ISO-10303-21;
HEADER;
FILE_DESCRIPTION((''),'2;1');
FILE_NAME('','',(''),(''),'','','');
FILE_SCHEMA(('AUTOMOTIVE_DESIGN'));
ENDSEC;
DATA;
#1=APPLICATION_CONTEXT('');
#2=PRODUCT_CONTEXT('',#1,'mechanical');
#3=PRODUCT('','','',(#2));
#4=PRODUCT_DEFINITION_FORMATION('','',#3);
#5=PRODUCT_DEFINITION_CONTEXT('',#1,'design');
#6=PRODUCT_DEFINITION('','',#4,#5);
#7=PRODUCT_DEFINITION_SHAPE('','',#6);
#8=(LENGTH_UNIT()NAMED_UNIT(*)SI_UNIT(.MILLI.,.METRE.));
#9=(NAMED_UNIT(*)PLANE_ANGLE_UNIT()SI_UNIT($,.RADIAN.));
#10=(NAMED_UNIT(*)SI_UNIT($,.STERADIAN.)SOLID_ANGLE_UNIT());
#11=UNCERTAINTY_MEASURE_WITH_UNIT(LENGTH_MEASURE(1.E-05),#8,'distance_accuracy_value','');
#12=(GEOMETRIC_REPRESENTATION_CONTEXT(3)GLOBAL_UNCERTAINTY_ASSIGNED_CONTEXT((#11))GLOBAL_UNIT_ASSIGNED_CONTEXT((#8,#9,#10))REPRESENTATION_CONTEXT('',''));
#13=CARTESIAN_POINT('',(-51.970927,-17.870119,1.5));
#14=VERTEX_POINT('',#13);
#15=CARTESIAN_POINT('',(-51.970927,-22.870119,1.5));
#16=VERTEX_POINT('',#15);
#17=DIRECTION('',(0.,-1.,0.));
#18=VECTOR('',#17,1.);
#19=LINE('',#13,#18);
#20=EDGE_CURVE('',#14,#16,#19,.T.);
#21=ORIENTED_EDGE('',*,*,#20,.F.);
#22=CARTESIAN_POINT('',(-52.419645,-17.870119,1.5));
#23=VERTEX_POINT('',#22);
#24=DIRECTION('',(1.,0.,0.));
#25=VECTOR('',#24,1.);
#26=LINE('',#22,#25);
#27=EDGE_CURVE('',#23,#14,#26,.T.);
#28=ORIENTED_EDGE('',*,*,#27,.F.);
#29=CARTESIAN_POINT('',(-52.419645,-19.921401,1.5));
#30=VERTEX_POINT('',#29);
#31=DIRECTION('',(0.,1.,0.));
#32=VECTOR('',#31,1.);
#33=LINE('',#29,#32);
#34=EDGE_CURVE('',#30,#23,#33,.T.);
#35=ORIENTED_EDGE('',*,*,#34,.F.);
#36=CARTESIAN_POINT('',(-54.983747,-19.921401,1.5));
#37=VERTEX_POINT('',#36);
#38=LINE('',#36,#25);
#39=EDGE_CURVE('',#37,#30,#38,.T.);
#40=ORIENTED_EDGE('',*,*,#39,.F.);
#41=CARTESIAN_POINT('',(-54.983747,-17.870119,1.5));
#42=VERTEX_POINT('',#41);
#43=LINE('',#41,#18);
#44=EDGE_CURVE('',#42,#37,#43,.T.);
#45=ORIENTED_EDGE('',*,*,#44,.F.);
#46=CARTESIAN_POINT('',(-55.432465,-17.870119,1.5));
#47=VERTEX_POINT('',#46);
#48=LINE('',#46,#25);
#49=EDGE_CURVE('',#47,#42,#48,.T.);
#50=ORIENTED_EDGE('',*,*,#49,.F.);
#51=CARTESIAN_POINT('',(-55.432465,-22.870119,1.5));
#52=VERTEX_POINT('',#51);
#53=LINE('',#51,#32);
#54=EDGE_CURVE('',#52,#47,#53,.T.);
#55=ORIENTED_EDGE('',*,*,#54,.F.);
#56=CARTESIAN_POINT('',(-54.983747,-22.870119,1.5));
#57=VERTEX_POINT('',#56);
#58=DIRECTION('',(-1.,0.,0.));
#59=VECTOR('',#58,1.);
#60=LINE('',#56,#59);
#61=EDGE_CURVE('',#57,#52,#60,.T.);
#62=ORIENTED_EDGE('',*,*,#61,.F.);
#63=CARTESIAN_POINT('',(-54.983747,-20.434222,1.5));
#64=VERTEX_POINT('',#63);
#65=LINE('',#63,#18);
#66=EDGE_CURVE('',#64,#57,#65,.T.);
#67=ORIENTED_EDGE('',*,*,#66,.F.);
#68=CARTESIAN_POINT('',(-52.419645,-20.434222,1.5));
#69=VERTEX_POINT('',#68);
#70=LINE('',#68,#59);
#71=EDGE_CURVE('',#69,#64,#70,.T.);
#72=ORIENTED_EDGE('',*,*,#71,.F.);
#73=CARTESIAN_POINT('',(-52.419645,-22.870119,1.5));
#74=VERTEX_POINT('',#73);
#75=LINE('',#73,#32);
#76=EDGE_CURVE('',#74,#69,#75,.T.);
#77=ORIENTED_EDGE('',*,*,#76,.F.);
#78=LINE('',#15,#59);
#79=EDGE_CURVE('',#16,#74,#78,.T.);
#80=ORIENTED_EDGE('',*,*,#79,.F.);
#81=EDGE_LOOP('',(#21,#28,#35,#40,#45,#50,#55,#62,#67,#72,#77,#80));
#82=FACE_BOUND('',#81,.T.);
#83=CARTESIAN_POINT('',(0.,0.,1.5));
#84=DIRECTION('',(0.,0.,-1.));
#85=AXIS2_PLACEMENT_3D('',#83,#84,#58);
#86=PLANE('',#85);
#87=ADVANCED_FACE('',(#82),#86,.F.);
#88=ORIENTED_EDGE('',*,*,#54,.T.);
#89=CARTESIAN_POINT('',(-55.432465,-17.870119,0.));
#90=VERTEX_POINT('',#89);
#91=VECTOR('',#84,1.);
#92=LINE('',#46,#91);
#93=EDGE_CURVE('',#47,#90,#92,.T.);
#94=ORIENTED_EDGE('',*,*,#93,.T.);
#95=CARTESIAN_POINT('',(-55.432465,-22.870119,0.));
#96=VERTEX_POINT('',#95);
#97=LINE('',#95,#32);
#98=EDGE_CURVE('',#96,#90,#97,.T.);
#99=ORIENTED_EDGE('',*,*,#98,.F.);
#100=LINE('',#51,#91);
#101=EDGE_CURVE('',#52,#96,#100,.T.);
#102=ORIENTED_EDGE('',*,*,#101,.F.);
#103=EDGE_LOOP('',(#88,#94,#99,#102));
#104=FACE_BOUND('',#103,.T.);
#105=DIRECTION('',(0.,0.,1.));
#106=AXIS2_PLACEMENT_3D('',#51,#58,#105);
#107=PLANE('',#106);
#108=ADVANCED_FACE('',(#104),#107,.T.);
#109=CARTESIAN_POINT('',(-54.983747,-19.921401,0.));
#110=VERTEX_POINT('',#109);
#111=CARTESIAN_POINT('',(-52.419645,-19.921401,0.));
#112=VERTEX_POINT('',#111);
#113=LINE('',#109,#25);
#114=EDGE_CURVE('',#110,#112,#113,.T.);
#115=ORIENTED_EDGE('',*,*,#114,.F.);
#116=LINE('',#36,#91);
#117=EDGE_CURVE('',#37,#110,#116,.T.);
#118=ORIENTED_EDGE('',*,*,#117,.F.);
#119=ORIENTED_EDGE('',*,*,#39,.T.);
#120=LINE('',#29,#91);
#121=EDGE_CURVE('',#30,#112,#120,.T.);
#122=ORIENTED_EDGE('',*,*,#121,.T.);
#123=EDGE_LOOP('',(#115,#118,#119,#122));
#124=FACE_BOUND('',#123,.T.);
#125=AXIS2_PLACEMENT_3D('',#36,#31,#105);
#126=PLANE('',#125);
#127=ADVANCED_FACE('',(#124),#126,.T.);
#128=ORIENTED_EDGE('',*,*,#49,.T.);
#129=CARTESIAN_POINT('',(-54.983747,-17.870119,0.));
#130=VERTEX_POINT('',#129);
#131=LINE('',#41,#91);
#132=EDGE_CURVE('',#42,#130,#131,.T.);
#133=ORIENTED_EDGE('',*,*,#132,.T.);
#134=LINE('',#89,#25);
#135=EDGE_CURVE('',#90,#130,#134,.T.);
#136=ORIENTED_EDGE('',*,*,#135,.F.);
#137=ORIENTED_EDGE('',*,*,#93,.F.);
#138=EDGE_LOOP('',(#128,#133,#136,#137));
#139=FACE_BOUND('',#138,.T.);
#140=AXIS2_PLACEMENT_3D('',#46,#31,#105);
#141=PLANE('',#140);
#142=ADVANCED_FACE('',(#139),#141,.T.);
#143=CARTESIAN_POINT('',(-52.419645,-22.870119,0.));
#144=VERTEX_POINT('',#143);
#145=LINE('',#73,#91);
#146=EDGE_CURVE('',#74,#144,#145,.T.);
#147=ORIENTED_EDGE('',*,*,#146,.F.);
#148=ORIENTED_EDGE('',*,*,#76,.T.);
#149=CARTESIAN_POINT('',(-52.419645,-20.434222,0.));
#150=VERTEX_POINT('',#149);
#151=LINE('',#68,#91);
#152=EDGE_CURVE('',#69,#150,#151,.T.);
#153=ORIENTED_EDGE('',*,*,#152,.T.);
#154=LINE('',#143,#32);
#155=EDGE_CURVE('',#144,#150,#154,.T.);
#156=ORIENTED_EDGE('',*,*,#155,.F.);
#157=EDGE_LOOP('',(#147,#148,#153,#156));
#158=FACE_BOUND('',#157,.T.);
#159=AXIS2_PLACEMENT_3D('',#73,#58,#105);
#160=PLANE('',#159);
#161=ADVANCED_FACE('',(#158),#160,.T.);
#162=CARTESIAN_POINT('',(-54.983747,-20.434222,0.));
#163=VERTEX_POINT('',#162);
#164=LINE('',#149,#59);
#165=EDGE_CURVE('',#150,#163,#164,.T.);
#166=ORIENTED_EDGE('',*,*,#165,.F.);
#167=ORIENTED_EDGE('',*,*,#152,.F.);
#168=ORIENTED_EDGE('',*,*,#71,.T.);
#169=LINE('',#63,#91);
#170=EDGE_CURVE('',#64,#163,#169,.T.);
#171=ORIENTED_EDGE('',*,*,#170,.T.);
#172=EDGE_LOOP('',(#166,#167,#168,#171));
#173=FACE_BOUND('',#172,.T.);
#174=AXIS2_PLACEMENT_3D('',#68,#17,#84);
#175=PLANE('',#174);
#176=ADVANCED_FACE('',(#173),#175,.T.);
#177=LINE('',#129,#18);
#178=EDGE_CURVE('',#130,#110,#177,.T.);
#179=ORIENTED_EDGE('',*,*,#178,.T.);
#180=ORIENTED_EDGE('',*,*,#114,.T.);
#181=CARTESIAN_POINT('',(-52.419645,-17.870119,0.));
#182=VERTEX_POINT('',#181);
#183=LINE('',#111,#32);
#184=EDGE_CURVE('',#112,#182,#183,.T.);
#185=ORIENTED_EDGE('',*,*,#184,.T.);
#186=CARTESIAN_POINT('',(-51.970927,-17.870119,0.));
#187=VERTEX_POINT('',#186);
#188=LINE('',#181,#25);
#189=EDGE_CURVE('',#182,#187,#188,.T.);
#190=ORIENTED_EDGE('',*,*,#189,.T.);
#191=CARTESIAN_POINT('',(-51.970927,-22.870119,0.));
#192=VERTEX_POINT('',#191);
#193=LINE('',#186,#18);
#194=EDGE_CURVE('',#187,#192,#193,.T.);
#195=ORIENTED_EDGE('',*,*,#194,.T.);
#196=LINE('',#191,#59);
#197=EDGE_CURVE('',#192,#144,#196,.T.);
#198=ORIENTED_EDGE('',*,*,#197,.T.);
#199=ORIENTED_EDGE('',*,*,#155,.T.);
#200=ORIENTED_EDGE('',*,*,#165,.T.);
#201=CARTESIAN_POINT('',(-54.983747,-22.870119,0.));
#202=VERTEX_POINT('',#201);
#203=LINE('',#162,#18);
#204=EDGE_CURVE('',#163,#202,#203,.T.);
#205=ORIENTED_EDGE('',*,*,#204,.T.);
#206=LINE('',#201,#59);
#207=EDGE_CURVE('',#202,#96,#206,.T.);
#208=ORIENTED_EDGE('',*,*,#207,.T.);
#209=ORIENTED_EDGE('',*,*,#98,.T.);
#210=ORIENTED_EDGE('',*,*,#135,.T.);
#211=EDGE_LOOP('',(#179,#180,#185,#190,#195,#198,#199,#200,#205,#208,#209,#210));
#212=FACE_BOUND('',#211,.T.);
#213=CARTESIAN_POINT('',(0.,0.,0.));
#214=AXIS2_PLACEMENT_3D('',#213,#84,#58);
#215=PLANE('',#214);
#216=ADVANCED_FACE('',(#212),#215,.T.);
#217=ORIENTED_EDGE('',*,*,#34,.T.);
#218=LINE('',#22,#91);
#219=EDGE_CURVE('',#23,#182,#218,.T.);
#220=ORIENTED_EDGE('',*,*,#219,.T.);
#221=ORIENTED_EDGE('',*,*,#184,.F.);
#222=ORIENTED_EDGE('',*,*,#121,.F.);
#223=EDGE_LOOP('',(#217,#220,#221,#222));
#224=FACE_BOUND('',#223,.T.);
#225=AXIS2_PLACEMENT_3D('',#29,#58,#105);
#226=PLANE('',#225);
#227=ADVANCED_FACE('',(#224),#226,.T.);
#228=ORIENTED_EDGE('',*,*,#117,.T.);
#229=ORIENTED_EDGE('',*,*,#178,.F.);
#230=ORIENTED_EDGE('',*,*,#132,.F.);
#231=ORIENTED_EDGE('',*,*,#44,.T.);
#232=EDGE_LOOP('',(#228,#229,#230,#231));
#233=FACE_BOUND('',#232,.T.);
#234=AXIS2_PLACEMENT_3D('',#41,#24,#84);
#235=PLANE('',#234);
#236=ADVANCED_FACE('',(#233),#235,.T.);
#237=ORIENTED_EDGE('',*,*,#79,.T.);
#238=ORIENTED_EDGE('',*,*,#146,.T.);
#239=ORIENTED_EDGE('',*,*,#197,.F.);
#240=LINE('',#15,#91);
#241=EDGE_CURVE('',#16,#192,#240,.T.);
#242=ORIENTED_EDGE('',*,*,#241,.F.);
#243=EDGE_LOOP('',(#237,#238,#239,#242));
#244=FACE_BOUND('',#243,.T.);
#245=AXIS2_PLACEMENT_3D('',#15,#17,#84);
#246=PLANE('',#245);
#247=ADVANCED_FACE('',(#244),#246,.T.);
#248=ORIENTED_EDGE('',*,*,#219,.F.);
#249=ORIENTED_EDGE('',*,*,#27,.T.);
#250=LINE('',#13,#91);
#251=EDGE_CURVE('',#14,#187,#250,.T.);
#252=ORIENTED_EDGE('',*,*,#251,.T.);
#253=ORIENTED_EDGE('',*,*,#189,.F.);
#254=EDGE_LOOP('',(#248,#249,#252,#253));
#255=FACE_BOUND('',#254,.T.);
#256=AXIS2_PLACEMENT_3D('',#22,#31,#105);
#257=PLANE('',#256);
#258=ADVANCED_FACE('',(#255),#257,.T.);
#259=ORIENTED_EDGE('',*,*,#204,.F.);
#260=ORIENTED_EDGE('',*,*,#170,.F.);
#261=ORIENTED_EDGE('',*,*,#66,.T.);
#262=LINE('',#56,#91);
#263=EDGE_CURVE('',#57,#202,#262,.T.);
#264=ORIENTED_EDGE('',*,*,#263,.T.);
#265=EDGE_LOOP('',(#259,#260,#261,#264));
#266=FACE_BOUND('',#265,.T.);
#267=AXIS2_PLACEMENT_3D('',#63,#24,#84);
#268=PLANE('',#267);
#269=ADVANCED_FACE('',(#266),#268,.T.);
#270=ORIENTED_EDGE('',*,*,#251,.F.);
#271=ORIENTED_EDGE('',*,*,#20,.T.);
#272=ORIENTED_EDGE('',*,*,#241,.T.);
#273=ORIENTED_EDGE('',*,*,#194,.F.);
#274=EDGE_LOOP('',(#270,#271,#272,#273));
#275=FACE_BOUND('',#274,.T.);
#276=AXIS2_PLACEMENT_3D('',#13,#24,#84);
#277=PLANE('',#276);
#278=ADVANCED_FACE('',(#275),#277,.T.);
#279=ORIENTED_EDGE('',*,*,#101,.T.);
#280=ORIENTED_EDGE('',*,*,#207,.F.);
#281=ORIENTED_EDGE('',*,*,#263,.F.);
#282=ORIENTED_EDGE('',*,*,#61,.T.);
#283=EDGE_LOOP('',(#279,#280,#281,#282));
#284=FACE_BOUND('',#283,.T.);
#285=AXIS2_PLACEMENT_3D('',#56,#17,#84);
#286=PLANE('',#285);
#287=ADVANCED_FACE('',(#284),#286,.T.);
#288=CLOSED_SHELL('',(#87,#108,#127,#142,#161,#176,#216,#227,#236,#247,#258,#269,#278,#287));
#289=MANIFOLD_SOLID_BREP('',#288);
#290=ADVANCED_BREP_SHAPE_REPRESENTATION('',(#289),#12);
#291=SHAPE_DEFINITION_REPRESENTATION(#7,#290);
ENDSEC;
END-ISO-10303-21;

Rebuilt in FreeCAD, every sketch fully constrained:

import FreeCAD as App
import Part
import Sketcher
Q = App.Units.Quantity

doc = App.newDocument("Part")
params = doc.addObject("Spreadsheet::Sheet", "Params")
for row, (alias, value) in enumerate([
    ("sketch1_height", "5 mm"),
    ("pad1_length", "1.5 mm"),
], start=1):
    params.set(f"A{row}", alias)
    params.set(f"B{row}", "=" + value)
    params.setAlias(f"B{row}", alias)

body = doc.addObject("PartDesign::Body", "Body")

sketch1 = doc.addObject("Sketcher::SketchObject", "Sketch")
body.addObject(sketch1)
sketch1.AttachmentSupport = (doc.XY_Plane, [""])
sketch1.MapMode = "FlatFace"
sketch1.addGeometry([
    Part.LineSegment(App.Vector(-54.983747, -17.870119, 0), App.Vector(-55.432465, -17.870119, 0)),
    Part.LineSegment(App.Vector(-55.432465, -17.870119, 0), App.Vector(-55.432465, -22.870119, 0)),
    Part.LineSegment(App.Vector(-55.432465, -22.870119, 0), App.Vector(-54.983747, -22.870119, 0)),
    Part.LineSegment(App.Vector(-54.983747, -22.870119, 0), App.Vector(-54.983747, -20.434222, 0)),
    Part.LineSegment(App.Vector(-54.983747, -20.434222, 0), App.Vector(-52.419645, -20.434222, 0)),
    Part.LineSegment(App.Vector(-52.419645, -20.434222, 0), App.Vector(-52.419645, -22.870119, 0)),
    Part.LineSegment(App.Vector(-52.419645, -22.870119, 0), App.Vector(-51.970927, -22.870119, 0)),
    Part.LineSegment(App.Vector(-51.970927, -22.870119, 0), App.Vector(-51.970927, -17.870119, 0)),
    Part.LineSegment(App.Vector(-51.970927, -17.870119, 0), App.Vector(-52.419645, -17.870119, 0)),
    Part.LineSegment(App.Vector(-52.419645, -17.870119, 0), App.Vector(-52.419645, -19.921401, 0)),
    Part.LineSegment(App.Vector(-52.419645, -19.921401, 0), App.Vector(-54.983747, -19.921401, 0)),
    Part.LineSegment(App.Vector(-54.983747, -19.921401, 0), App.Vector(-54.983747, -17.870119, 0)),
], False)
sketch1.addConstraint([
    Sketcher.Constraint("Coincident", 0, 2, 1, 1),
    Sketcher.Constraint("Coincident", 1, 2, 2, 1),
    Sketcher.Constraint("Coincident", 2, 2, 3, 1),
    Sketcher.Constraint("Coincident", 3, 2, 4, 1),
    Sketcher.Constraint("Coincident", 4, 2, 5, 1),
    Sketcher.Constraint("Coincident", 5, 2, 6, 1),
    Sketcher.Constraint("Coincident", 6, 2, 7, 1),
    Sketcher.Constraint("Coincident", 7, 2, 8, 1),
    Sketcher.Constraint("Coincident", 8, 2, 9, 1),
    Sketcher.Constraint("Coincident", 9, 2, 10, 1),
    Sketcher.Constraint("Coincident", 10, 2, 11, 1),
    Sketcher.Constraint("Coincident", 11, 2, 0, 1),
    Sketcher.Constraint("Horizontal", 0),
    Sketcher.Constraint("Vertical", 1),
    Sketcher.Constraint("Horizontal", 2),
    Sketcher.Constraint("Vertical", 3),
    Sketcher.Constraint("Horizontal", 4),
    Sketcher.Constraint("Vertical", 5),
    Sketcher.Constraint("Horizontal", 6),
    Sketcher.Constraint("Vertical", 7),
    Sketcher.Constraint("Horizontal", 8),
    Sketcher.Constraint("Vertical", 9),
    Sketcher.Constraint("Horizontal", 10),
    Sketcher.Constraint("Vertical", 11),
    Sketcher.Constraint("Horizontal", 2, 2, 5, 2),
    Sketcher.Constraint("Horizontal", 0, 2, 7, 2),
    Sketcher.Constraint("Vertical", 5, 2, 8, 2),
    Sketcher.Constraint("Vertical", 3, 2, 10, 2),
    Sketcher.Constraint("Equal", 2, 6),
    Sketcher.Constraint("DistanceY", 1, 2, 1, 1, Q("5 mm")),
    Sketcher.Constraint("DistanceY", 9, 2, -1, 1, Q("19.921401 mm")),
    Sketcher.Constraint("DistanceX", 0, 2, 0, 1, Q("0.448718 mm")),
    Sketcher.Constraint("DistanceX", 4, 1, 4, 2, Q("2.564103 mm")),
    Sketcher.Constraint("DistanceY", 3, 1, 3, 2, Q("2.435897 mm")),
    Sketcher.Constraint("DistanceY", 9, 2, 9, 1, Q("2.051282 mm")),
    Sketcher.Constraint("DistanceX", 0, 2, -1, 1, Q("55.432465 mm")),
])
sketch1.setExpression("Constraints[29]", "Params.sketch1_height")
pad1 = doc.addObject("PartDesign::Pad", "Pad")
body.addObject(pad1)
pad1.Profile = sketch1
pad1.setExpression("Length", "Params.pad1_length")

doc.recompute()
